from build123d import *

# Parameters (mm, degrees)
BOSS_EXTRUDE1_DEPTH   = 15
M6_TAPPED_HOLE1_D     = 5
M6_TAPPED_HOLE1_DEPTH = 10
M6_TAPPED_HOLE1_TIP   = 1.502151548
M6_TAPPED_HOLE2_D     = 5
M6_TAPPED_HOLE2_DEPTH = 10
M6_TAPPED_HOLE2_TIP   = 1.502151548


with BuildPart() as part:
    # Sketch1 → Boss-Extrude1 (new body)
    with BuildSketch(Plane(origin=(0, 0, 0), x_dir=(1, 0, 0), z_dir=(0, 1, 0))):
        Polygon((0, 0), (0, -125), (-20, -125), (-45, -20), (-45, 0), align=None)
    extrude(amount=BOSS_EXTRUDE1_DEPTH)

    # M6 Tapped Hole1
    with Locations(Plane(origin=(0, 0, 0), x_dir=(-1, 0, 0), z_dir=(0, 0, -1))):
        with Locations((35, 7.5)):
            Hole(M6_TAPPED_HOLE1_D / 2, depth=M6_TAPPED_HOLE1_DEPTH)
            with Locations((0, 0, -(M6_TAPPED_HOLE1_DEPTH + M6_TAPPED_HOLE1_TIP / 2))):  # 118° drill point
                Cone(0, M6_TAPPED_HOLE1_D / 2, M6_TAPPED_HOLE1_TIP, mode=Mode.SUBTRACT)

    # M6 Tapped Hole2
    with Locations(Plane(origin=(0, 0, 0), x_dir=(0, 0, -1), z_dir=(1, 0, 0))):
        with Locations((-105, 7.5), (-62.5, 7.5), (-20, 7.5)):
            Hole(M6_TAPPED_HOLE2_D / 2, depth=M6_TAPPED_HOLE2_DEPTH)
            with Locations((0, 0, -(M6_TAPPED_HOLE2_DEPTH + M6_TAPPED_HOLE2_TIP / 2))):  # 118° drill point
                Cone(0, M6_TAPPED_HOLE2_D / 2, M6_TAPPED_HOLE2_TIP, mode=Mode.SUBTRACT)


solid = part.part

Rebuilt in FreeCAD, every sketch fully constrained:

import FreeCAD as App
import Part
import Sketcher


def add_polygon(sketch, points):
    """Adds a closed chain of lines whose ends are joined by coincident constraints."""
    first, n = sketch.GeometryCount, len(points)
    for a, b in zip(points, points[1:] + points[:1]):
        sketch.addGeometry(Part.LineSegment(App.Vector(*a, 0), App.Vector(*b, 0)), False)
    for i in range(n):
        sketch.addConstraint(Sketcher.Constraint("Coincident", first + i, 2, first + (i + 1) % n, 1))

doc = App.newDocument("Part")
body = doc.addObject("PartDesign::Body", "Body")

# Sketch on XZ plane
sketch1 = body.newObject("Sketcher::SketchObject", "Sketch")
sketch1.AttachmentSupport = (doc.getObject("XZ_Plane"), [""])
sketch1.MapMode = "FlatFace"
add_polygon(sketch1, [(0, 125), (0, 0), (-45, 0), (-45, 20), (-20, 125)])  # lines 0-4
sketch1.addConstraint([
    Sketcher.Constraint("Vertical", 0),
    Sketcher.Constraint("Horizontal", 1),
    Sketcher.Constraint("Vertical", 2),
    Sketcher.Constraint("Horizontal", 4),
    Sketcher.Constraint("Coincident", 0, 2, -1, 1),
    Sketcher.Constraint("Equal", 4, 2),
    Sketcher.Constraint("DistanceX", 1, 2, 1, 1, 45.0),
    Sketcher.Constraint("DistanceX", 4, 1, 4, 2, 20.0),
    Sketcher.Constraint("DistanceY", 0, 2, 0, 1, 125.0),
])
pad1 = body.newObject("PartDesign::Pad", "Pad")
pad1.Profile = sketch1
pad1.Length = 15
pad1.Reversed = True

# Sketch on XY plane
sketch2 = body.newObject("Sketcher::SketchObject", "Sketch001")
sketch2.AttachmentSupport = (doc.getObject("XY_Plane"), [""])
sketch2.MapMode = "FlatFace"
sketch2.addGeometry(Part.Circle(App.Vector(-35, 7.5, 0), App.Vector(0, 0, 1), 2.5), False)
sketch2.addConstraint([
    Sketcher.Constraint("Diameter", 0, 5.0),
    Sketcher.Constraint("DistanceX", 0, 3, -1, 1, 35.0),
    Sketcher.Constraint("DistanceY", -1, 1, 0, 3, 7.5),
])
doc.recompute()
hole = body.newObject("PartDesign::Hole", "Hole")
hole.Profile = sketch2
hole.ThreadType = "None"
hole.Diameter = 5
hole.DepthType = "Dimension"
hole.Depth = 10
hole.DrillPoint = "Angled"
hole.DrillPointAngle = 118
hole.Reversed = True

# Sketch on YZ plane
sketch3 = body.newObject("Sketcher::SketchObject", "Sketch002")
sketch3.AttachmentSupport = (doc.getObject("YZ_Plane"), [""])
sketch3.MapMode = "FlatFace"
sketch3.addGeometry([
    Part.Circle(App.Vector(7.5, 105, 0), App.Vector(0, 0, 1), 2.5),
    Part.Circle(App.Vector(7.5, 62.5, 0), App.Vector(0, 0, 1), 2.5),
    Part.Circle(App.Vector(7.5, 20, 0), App.Vector(0, 0, 1), 2.5),
], False)
sketch3.addConstraint([
    Sketcher.Constraint("Equal", 0, 1),
    Sketcher.Constraint("Equal", 1, 2),
    Sketcher.Constraint("Vertical", 0, 3, 1, 3),
    Sketcher.Constraint("Vertical", 1, 3, 2, 3),
    Sketcher.Constraint("Diameter", 0, 5.0),
    Sketcher.Constraint("DistanceY", -1, 1, 0, 3, 105.0),
    Sketcher.Constraint("DistanceY", -1, 1, 2, 3, 20.0),
    Sketcher.Constraint("DistanceX", -1, 1, 0, 3, 7.5),
    Sketcher.Constraint("DistanceY", -1, 1, 1, 3, 62.5),
])
doc.recompute()
hole2 = body.newObject("PartDesign::Hole", "Hole001")
hole2.Profile = sketch3
hole2.ThreadType = "None"
hole2.Diameter = 5
hole2.DepthType = "Dimension"
hole2.Depth = 10
hole2.DrillPoint = "Angled"
hole2.DrillPointAngle = 118

doc.recompute()
